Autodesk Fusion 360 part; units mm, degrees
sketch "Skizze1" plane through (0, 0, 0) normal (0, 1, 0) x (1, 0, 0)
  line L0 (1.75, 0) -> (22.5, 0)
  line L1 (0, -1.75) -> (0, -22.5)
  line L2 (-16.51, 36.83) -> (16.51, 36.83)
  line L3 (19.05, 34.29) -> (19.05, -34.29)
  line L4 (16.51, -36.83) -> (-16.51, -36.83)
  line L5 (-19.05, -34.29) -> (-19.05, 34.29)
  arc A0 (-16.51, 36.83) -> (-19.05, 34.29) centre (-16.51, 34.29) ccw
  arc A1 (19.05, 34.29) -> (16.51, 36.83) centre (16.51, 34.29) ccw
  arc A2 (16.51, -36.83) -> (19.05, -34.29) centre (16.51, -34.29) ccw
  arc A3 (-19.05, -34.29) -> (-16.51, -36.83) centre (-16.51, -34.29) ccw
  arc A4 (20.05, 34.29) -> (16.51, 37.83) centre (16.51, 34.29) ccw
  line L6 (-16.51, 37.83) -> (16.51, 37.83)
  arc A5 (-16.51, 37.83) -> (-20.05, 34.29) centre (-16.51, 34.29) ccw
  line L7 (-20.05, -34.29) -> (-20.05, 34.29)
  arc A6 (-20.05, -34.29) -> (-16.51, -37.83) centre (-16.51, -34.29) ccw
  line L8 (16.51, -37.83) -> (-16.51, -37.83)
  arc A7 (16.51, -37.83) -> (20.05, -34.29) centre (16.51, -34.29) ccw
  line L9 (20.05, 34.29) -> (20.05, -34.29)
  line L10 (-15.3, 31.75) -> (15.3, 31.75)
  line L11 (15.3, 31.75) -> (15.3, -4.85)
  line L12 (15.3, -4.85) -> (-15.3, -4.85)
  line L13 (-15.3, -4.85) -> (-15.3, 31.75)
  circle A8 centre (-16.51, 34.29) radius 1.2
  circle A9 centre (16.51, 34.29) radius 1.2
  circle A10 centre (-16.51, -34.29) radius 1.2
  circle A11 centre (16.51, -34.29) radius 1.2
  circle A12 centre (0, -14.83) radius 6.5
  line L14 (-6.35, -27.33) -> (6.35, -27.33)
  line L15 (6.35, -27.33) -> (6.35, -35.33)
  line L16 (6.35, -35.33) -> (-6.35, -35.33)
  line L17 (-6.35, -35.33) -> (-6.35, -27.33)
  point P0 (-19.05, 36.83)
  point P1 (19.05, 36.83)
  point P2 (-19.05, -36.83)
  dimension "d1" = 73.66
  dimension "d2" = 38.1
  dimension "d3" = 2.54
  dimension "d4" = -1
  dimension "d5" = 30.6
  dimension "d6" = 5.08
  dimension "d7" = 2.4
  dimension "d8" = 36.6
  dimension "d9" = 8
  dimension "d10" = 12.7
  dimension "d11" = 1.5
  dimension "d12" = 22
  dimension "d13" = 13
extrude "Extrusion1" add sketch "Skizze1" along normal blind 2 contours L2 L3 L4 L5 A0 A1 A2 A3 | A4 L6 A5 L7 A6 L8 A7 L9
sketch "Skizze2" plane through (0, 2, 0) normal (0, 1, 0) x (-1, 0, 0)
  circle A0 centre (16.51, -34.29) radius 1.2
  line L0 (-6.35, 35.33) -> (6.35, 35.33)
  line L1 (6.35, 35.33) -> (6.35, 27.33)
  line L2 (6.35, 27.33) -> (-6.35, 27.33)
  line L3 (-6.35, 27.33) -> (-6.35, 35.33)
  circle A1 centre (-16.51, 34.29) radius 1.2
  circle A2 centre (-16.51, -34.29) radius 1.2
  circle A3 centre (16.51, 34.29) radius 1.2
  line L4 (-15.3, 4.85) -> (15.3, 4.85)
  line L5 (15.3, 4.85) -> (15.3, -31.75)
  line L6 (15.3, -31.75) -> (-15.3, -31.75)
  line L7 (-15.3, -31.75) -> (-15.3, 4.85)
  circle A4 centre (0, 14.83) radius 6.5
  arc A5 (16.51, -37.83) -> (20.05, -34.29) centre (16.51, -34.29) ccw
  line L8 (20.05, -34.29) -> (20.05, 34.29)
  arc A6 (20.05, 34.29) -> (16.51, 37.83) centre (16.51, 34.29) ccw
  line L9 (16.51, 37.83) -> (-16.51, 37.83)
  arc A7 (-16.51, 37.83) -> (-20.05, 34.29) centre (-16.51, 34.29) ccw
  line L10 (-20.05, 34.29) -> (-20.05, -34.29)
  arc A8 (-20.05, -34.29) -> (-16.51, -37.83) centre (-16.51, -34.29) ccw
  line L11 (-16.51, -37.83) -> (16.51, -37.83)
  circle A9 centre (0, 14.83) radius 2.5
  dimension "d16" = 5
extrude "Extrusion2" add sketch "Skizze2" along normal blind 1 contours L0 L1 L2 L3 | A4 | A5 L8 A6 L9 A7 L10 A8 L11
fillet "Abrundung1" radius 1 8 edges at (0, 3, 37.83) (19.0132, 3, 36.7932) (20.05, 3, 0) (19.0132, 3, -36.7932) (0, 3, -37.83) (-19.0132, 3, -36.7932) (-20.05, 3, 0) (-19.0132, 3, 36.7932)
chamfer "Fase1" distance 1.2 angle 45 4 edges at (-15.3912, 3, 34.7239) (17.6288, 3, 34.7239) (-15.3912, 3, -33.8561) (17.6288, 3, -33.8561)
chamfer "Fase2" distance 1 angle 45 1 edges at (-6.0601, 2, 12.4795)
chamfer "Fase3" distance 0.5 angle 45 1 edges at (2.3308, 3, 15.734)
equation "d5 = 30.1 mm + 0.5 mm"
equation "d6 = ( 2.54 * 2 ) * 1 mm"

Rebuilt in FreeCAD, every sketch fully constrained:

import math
import FreeCAD as App
import Part
import Sketcher


def edges_at(feature, points):
    """Names of the edges that pass closest to the given points."""
    edges = feature.Shape.Edges
    near = lambda p: min(range(len(edges)), key=lambda i: edges[i].distToShape(Part.Vertex(*p))[0])
    return sorted({f"Edge{near(p) + 1}" for p in points})


def add_polygon(sketch, points):
    """Adds a closed chain of lines whose ends are joined by coincident constraints."""
    first, n = sketch.GeometryCount, len(points)
    for a, b in zip(points, points[1:] + points[:1]):
        sketch.addGeometry(Part.LineSegment(App.Vector(*a, 0), App.Vector(*b, 0)), False)
    for i in range(n):
        sketch.addConstraint(Sketcher.Constraint("Coincident", first + i, 2, first + (i + 1) % n, 1))

doc = App.newDocument("Part")
body = doc.addObject("PartDesign::Body", "Body")

sketch1 = body.newObject("Sketcher::SketchObject", "Sketch")
sketch1.AttachmentSupport = (doc.getObject("XZ_Plane"), [""])
sketch1.MapMode = "FlatFace"
sketch1.addGeometry(Part.LineSegment(App.Vector(20.1, 34.3, 0), App.Vector(20.1, 0, 0)), False)
sketch1.addGeometry(Part.LineSegment(App.Vector(20.1, 0, 0), App.Vector(20.1, -34.3, 0)), False)
sketch1.addGeometry(Part.ArcOfCircle(Part.Circle(App.Vector(16.5, -34.3, 0), App.Vector(0, 0, 1), 3.5), math.radians(-90), math.radians(0)), False)
sketch1.addGeometry(Part.LineSegment(App.Vector(16.5, -37.8, 0), App.Vector(-16.5, -37.8, 0)), False)
sketch1.addGeometry(Part.ArcOfCircle(Part.Circle(App.Vector(-16.5, -34.3, 0), App.Vector(0, 0, 1), 3.5), math.radians(180), math.radians(270)), False)
sketch1.addGeometry(Part.LineSegment(App.Vector(-20.1, -34.3, 0), App.Vector(-20.1, 34.3, 0)), False)
sketch1.addGeometry(Part.ArcOfCircle(Part.Circle(App.Vector(-16.5, 34.3, 0), App.Vector(0, 0, 1), 3.5), math.radians(90), math.radians(180)), False)
sketch1.addGeometry(Part.LineSegment(App.Vector(-16.5, 37.8, 0), App.Vector(16.5, 37.8, 0)), False)
sketch1.addGeometry(Part.ArcOfCircle(Part.Circle(App.Vector(16.5, 34.3, 0), App.Vector(0, 0, 1), 3.5), math.radians(0), math.radians(90)), False)
sketch1.addGeometry(Part.Circle(App.Vector(-16.5, 34.3, 0), App.Vector(0, 0, 1), 1.2), False)
add_polygon(sketch1, [(-6.3, 35.3), (-6.3, 27.3), (6.3, 27.3), (6.3, 35.3)])
sketch1.addGeometry(Part.Circle(App.Vector(0, 14.8, 0), App.Vector(0, 0, 1), 6.5), False)
sketch1.addGeometry(Part.Circle(App.Vector(16.5, 34.3, 0), App.Vector(0, 0, 1), 1.2), False)
add_polygon(sketch1, [(15.3, -31.8), (15.3, 0), (15.3, 4.8), (0, 4.8), (-15.3, 4.8), (-15.3, -31.8)])
sketch1.addGeometry(Part.Circle(App.Vector(-16.5, -34.3, 0), App.Vector(0, 0, 1), 1.2), False)
sketch1.addGeometry(Part.Circle(App.Vector(16.5, -34.3, 0), App.Vector(0, 0, 1), 1.2), False)
sketch1.addConstraint([
    Sketcher.Constraint("Coincident", 0, 2, 1, 1),
    Sketcher.Constraint("Tangent", 1, 2, 2, 2),
    Sketcher.Constraint("Tangent", 2, 1, 3, 1),
    Sketcher.Constraint("Tangent", 3, 2, 4, 2),
    Sketcher.Constraint("Tangent", 4, 1, 5, 1),
    Sketcher.Constraint("Tangent", 5, 2, 6, 2),
    Sketcher.Constraint("Tangent", 6, 1, 7, 1),
    Sketcher.Constraint("Tangent", 7, 2, 8, 2),
    Sketcher.Constraint("Tangent", 8, 1, 0, 1),
    Sketcher.Constraint("Vertical", 0),
    Sketcher.Constraint("Vertical", 1),
    Sketcher.Constraint("Horizontal", 3),
    Sketcher.Constraint("Vertical", 5),
    Sketcher.Constraint("Horizontal", 7),
    Sketcher.Constraint("Vertical", 10),
    Sketcher.Constraint("Horizontal", 11),
    Sketcher.Constraint("Vertical", 12),
    Sketcher.Constraint("Horizontal", 13),
    Sketcher.Constraint("Vertical", 16),
    Sketcher.Constraint("Vertical", 17),
    Sketcher.Constraint("Horizontal", 18),
    Sketcher.Constraint("Horizontal", 19),
    Sketcher.Constraint("Vertical", 20),
    Sketcher.Constraint("Horizontal", 21),
    Sketcher.Constraint("Coincident", 9, 3, 6, 3),
    Sketcher.Constraint("Coincident", 15, 3, 8, 3),
    Sketcher.Constraint("Coincident", 22, 3, 4, 3),
    Sketcher.Constraint("Coincident", 23, 3, 2, 3),
    Sketcher.Constraint("Equal", 2, 4),
    Sketcher.Constraint("Equal", 4, 6),
    Sketcher.Constraint("Equal", 6, 8),
    Sketcher.Constraint("Equal", 9, 15),
    Sketcher.Constraint("Equal", 15, 22),
    Sketcher.Constraint("Equal", 22, 23),
    Sketcher.Constraint("Symmetric", 2, 3, 6, 3, -1, 1),
    Sketcher.Constraint("PointOnObject", 14, 3, -2),
    Sketcher.Constraint("PointOnObject", 0, 2, -1),
    Sketcher.Constraint("PointOnObject", 16, 2, -1),
    Sketcher.Constraint("PointOnObject", 18, 2, -2),
    Sketcher.Constraint("Equal", 18, 19),
    Sketcher.Constraint("Diameter", 14, 13.0),
    Sketcher.Constraint("Diameter", 9, 2.4),
    Sketcher.Constraint("DistanceY", 10, 2, 10, 1, 8.0),
    Sketcher.Constraint("DistanceX", 11, 1, 11, 2, 12.7),
    Sketcher.Constraint("DistanceX", 21, 1, 21, 2, 30.6),
    Sketcher.Constraint("DistanceY", 20, 2, 20, 1, 36.6),
    Sketcher.Constraint("Radius", 2, 3.54),
    Sketcher.Constraint("DistanceY", 4, 3, 20, 2, 2.54),
    Sketcher.Constraint("DistanceY", 14, 3, 6, 1, 23.0),
    Sketcher.Constraint("DistanceX", 3, 2, 3, 1, 33.02),
    Sketcher.Constraint("DistanceY", 0, 2, 0, 1, 34.29),
    Sketcher.Constraint("DistanceY", 14, 3, 10, 2, 12.5),
    Sketcher.Constraint("DistanceX", 5, 2, 10, 2, 13.7),
])
pad1 = body.newObject("PartDesign::Pad", "Pad")
pad1.Profile = sketch1
pad1.Length = 2
pad1.Reversed = True

sketch2 = body.newObject("Sketcher::SketchObject", "Sketch001")
sketch2.AttachmentSupport = (doc.getObject("XZ_Plane"), [""])
sketch2.MapMode = "FlatFace"
sketch2.AttachmentOffset = App.Placement(App.Vector(0, 0, -2), App.Rotation())
sketch2.addGeometry(Part.LineSegment(App.Vector(16.5, -37.8, 0), App.Vector(-16.5, -37.8, 0)), False)
sketch2.addGeometry(Part.ArcOfCircle(Part.Circle(App.Vector(-16.5, -34.3, 0), App.Vector(0, 0, 1), 3.5), math.radians(180), math.radians(270)), False)
sketch2.addGeometry(Part.LineSegment(App.Vector(-20.1, -34.3, 0), App.Vector(-20.1, 34.3, 0)), False)
sketch2.addGeometry(Part.ArcOfCircle(Part.Circle(App.Vector(-16.5, 34.3, 0), App.Vector(0, 0, 1), 3.5), math.radians(90), math.radians(180)), False)
sketch2.addGeometry(Part.LineSegment(App.Vector(-16.5, 37.8, 0), App.Vector(16.5, 37.8, 0)), False)
sketch2.addGeometry(Part.ArcOfCircle(Part.Circle(App.Vector(16.5, 34.3, 0), App.Vector(0, 0, 1), 3.5), math.radians(0), math.radians(90)), False)
sketch2.addGeometry(Part.LineSegment(App.Vector(20.1, 34.3, 0), App.Vector(20.1, -34.3, 0)), False)
sketch2.addGeometry(Part.ArcOfCircle(Part.Circle(App.Vector(16.5, -34.3, 0), App.Vector(0, 0, 1), 3.5), math.radians(-90), math.radians(0)), False)
sketch2.addGeometry(Part.Circle(App.Vector(16.5, -34.3, 0), App.Vector(0, 0, 1), 1.2), False)
add_polygon(sketch2, [(15.3, -31.8), (15.3, 4.8), (-15.3, 4.8), (-15.3, -31.8)])
sketch2.addGeometry(Part.Circle(App.Vector(-16.5, -34.3, 0), App.Vector(0, 0, 1), 1.2), False)
sketch2.addGeometry(Part.Circle(App.Vector(16.5, 34.3, 0), App.Vector(0, 0, 1), 1.2), False)
sketch2.addGeometry(Part.Circle(App.Vector(-16.5, 34.3, 0), App.Vector(0, 0, 1), 1.2), False)
sketch2.addGeometry(Part.Circle(App.Vector(0, 14.8, 0), App.Vector(0, 0, 1), 2.5), False)
sketch2.addConstraint([
    Sketcher.Constraint("Tangent", 0, 2, 1, 2),
    Sketcher.Constraint("Tangent", 1, 1, 2, 1),
    Sketcher.Constraint("Tangent", 2, 2, 3, 2),
    Sketcher.Constraint("Tangent", 3, 1, 4, 1),
    Sketcher.Constraint("Tangent", 4, 2, 5, 2),
    Sketcher.Constraint("Tangent", 5, 1, 6, 1),
    Sketcher.Constraint("Tangent", 6, 2, 7, 2),
    Sketcher.Constraint("Tangent", 7, 1, 0, 1),
    Sketcher.Constraint("Horizontal", 0),
    Sketcher.Constraint("Vertical", 2),
    Sketcher.Constraint("Horizontal", 4),
    Sketcher.Constraint("Vertical", 6),
    Sketcher.Constraint("Vertical", 9),
    Sketcher.Constraint("Horizontal", 10),
    Sketcher.Constraint("Vertical", 11),
    Sketcher.Constraint("Horizontal", 12),
    Sketcher.Constraint("Coincident", 8, 3, 7, 3),
    Sketcher.Constraint("Coincident", 13, 3, 1, 3),
    Sketcher.Constraint("Coincident", 14, 3, 5, 3),
    Sketcher.Constraint("Coincident", 15, 3, 3, 3),
    Sketcher.Constraint("Equal", 1, 3),
    Sketcher.Constraint("Equal", 3, 5),
    Sketcher.Constraint("Equal", 5, 7),
    Sketcher.Constraint("Equal", 8, 13),
    Sketcher.Constraint("Equal", 13, 14),
    Sketcher.Constraint("Equal", 14, 15),
    Sketcher.Constraint("Symmetric", 1, 3, 5, 3, -1, 1),
    Sketcher.Constraint("PointOnObject", 16, 3, -2),
    Sketcher.Constraint("Diameter", 16, 5.0),
    Sketcher.Constraint("Diameter", 8, 2.4),
    Sketcher.Constraint("Radius", 1, 3.54),
    Sketcher.Constraint("DistanceX", 10, 2, 10, 1, 30.6),
    Sketcher.Constraint("DistanceY", 9, 1, 9, 2, 36.6),
    Sketcher.Constraint("DistanceY", 16, 3, 3, 1, 23.0),
    Sketcher.Constraint("DistanceX", 0, 2, 0, 1, 33.02),
    Sketcher.Constraint("DistanceY", 2, 1, 2, 2, 68.58),
    Sketcher.Constraint("DistanceX", -1, 1, 9, 2, 15.3),
    Sketcher.Constraint("DistanceY", -1, 1, 9, 2, 4.85),
])
pad2 = body.newObject("PartDesign::Pad", "Pad001")
pad2.Profile = sketch2
pad2.Length = 1
pad2.Reversed = True
doc.recompute()

fillet = body.newObject("PartDesign::Fillet", "Fillet")
fillet.Base = (pad2, edges_at(pad2, [
    (0, 3, 37.83),
    (19.013, 3, 36.793),
    (20.05, 3, 0),
    (19.013, 3, -36.793),
    (0, 3, -37.83),
    (-19.013, 3, -36.793),
    (-20.05, 3, 0),
    (-19.013, 3, 36.793),
]))
fillet.Radius = 1
doc.recompute()

chamfer = body.newObject("PartDesign::Chamfer", "Chamfer")
chamfer.Base = (fillet, edges_at(fillet, [
    (-15.391, 3, 34.724),
    (17.629, 3, 34.724),
    (-15.391, 3, -33.856),
    (17.629, 3, -33.856),
]))
chamfer.Size = 1.2
doc.recompute()

chamfer2 = body.newObject("PartDesign::Chamfer", "Chamfer001")
chamfer2.Base = (chamfer, edges_at(chamfer, [(-6.06, 2, 12.479)]))
chamfer2.Size = 1
doc.recompute()

chamfer3 = body.newObject("PartDesign::Chamfer", "Chamfer002")
chamfer3.Base = (chamfer2, edges_at(chamfer2, [(2.331, 3, 15.734)]))
chamfer3.Size = 0.5

doc.recompute()
